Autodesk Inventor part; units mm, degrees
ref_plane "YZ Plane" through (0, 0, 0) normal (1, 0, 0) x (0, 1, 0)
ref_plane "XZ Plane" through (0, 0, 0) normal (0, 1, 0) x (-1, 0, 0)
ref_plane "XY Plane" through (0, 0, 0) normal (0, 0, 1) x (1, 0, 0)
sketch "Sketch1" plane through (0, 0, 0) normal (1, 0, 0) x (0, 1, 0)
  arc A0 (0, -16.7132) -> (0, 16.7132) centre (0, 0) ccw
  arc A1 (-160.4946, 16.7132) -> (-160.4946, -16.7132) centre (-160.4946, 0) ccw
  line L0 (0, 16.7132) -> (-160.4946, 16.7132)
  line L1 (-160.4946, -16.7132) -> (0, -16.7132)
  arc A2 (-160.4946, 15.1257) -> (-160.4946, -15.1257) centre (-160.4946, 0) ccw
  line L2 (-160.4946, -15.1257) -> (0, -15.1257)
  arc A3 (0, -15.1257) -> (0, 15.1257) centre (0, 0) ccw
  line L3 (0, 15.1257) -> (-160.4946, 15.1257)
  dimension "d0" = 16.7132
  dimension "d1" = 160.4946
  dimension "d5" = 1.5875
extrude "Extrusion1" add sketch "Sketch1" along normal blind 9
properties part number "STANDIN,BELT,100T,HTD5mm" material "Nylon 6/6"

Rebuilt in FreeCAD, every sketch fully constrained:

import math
import FreeCAD as App
import Part
import Sketcher

V = App.Vector
Q = App.Units.Quantity

doc = App.newDocument("Part")
body = doc.addObject("PartDesign::Body", "Body")

sketch1 = doc.addObject("Sketcher::SketchObject", "Sketch")
body.addObject(sketch1)
sketch1.AttachmentSupport = (doc.YZ_Plane, [""])
sketch1.MapMode = "FlatFace"
sketch1.addGeometry([
    Part.LineSegment(V(-160, -17, 0), V(0, -17, 0)),
    Part.ArcOfCircle(Part.Circle(V(0, 0, 0), V(0, 0, 1), 17), math.radians(-90), math.radians(90)),
    Part.LineSegment(V(0, 17, 0), V(-160, 17, 0)),
    Part.ArcOfCircle(Part.Circle(V(-160, 0, 0), V(0, 0, 1), 17), math.radians(90), math.radians(270)),
    Part.ArcOfCircle(Part.Circle(V(-160, 0, 0), V(0, 0, 1), 15), math.radians(90), math.radians(270)),
    Part.LineSegment(V(-160, 15, 0), V(0, 15, 0)),
    Part.ArcOfCircle(Part.Circle(V(0, 0, 0), V(0, 0, 1), 15), math.radians(-90), math.radians(90)),
    Part.LineSegment(V(0, -15, 0), V(-160, -15, 0)),
], False)
sketch1.addConstraint([
    Sketcher.Constraint("Tangent", 0, 2, 1, 1),
    Sketcher.Constraint("Tangent", 1, 2, 2, 1),
    Sketcher.Constraint("Tangent", 2, 2, 3, 1),
    Sketcher.Constraint("Tangent", 3, 2, 0, 1),
    Sketcher.Constraint("Tangent", 4, 1, 5, 1),
    Sketcher.Constraint("Tangent", 5, 2, 6, 2),
    Sketcher.Constraint("Tangent", 6, 1, 7, 1),
    Sketcher.Constraint("Tangent", 7, 2, 4, 2),
    Sketcher.Constraint("Horizontal", 0),
    Sketcher.Constraint("Horizontal", 2),
    Sketcher.Constraint("Horizontal", 5),
    Sketcher.Constraint("Horizontal", 7),
    Sketcher.Constraint("Coincident", 1, 3, -1, 1),
    Sketcher.Constraint("Coincident", 6, 3, -1, 1),
    Sketcher.Constraint("Vertical", 4, 3, 2, 2),
    Sketcher.Constraint("Radius", 1, Q("0.658 in")),
    Sketcher.Constraint("DistanceY", 4, 1, 2, 2, Q("0.0625 in")),
    Sketcher.Constraint("DistanceX", 0, 1, 0, 2, 160.4946),
])
pad1 = doc.addObject("PartDesign::Pad", "Pad")
body.addObject(pad1)
pad1.Profile = sketch1
pad1.Length = 9

doc.recompute()
